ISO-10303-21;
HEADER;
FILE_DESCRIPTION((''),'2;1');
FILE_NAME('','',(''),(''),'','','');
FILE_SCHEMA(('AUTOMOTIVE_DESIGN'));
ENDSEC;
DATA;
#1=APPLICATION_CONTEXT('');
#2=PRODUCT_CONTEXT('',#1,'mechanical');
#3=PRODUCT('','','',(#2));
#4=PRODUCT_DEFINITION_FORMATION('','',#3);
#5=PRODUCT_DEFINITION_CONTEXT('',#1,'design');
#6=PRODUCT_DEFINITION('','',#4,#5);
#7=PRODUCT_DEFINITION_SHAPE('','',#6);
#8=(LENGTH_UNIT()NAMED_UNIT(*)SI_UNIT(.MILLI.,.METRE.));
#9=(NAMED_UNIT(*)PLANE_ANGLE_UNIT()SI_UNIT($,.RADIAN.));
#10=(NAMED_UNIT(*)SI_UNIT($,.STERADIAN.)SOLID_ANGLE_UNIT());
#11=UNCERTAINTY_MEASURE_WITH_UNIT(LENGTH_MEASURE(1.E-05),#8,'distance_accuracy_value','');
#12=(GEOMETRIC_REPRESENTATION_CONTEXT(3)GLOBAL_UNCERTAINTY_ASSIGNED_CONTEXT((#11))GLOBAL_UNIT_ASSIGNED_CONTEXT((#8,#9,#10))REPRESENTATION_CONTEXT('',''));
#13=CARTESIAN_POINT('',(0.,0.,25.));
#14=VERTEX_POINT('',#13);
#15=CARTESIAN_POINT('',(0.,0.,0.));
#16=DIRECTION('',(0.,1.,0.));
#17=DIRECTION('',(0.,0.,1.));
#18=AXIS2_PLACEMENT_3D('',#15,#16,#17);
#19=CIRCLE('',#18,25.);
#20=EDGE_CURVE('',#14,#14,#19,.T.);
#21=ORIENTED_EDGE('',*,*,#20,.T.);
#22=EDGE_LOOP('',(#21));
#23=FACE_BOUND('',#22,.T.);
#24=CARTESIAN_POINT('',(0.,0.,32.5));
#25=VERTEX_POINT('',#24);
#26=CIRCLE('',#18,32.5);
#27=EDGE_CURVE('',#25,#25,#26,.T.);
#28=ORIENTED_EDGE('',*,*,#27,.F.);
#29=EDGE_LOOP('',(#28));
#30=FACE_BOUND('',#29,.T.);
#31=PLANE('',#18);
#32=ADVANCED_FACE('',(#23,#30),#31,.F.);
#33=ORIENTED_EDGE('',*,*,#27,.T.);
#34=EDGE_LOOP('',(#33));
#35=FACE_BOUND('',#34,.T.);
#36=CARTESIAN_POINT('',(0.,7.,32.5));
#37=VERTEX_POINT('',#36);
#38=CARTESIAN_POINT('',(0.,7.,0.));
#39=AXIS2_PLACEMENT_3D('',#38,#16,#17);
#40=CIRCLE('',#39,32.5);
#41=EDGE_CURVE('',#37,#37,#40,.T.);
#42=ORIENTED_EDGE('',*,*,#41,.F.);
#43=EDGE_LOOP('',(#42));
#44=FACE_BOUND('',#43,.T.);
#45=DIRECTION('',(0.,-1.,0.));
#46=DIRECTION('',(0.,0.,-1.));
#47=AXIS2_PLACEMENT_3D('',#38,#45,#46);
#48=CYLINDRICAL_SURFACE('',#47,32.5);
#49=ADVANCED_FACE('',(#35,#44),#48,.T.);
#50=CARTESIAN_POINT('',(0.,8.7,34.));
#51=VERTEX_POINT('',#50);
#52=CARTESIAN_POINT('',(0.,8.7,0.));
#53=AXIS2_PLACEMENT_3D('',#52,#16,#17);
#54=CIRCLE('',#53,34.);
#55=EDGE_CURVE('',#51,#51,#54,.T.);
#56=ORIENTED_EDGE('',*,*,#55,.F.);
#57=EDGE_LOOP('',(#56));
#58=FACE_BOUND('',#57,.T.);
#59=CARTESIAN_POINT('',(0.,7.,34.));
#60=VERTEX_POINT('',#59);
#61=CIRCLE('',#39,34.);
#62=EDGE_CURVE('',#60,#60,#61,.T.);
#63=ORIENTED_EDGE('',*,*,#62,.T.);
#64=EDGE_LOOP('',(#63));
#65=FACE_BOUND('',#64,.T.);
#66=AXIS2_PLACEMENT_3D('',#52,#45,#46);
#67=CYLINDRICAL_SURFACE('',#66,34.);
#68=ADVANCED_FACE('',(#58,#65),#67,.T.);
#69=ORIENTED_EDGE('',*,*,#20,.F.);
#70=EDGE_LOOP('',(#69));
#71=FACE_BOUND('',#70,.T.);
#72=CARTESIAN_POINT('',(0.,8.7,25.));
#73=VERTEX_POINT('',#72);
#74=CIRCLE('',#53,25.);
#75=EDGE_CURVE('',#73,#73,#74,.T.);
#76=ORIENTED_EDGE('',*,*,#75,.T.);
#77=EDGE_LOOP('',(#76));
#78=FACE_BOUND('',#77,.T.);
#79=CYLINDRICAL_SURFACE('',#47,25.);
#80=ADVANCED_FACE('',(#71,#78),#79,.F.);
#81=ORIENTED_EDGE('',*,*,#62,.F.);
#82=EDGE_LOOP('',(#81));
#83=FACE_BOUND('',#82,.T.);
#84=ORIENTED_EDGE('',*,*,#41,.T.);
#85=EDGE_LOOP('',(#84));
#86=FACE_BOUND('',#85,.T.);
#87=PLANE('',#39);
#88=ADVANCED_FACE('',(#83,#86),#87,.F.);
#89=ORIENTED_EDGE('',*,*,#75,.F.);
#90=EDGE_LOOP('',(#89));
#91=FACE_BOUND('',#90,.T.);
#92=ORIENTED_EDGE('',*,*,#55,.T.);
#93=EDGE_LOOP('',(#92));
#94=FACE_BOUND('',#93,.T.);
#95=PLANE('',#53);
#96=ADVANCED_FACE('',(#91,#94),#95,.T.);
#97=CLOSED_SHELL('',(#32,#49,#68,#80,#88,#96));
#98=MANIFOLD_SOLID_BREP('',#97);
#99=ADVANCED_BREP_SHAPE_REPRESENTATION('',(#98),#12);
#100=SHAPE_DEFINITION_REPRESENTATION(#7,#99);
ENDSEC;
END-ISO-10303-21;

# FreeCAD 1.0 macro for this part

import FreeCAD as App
import Part
import Sketcher
Q = App.Units.Quantity

doc = App.newDocument("Part")
body = doc.addObject("PartDesign::Body", "Body")

sketch1 = body.newObject("Sketcher::SketchObject", "Sketch")
sketch1.AttachmentSupport = (doc.getObject("XZ_Plane"), [""])
sketch1.MapMode = "FlatFace"
sketch1.addGeometry(Part.Circle(App.Vector(0, 0, 0), App.Vector(0, 0, 1), 32), False)
sketch1.addGeometry(Part.Circle(App.Vector(0, 0, 0), App.Vector(0, 0, 1), 25), False)
sketch1.addConstraint(Sketcher.Constraint("Coincident", 0, 3, -1, 1))
sketch1.addConstraint(Sketcher.Constraint("Coincident", 1, 3, -1, 1))
sketch1.addConstraint(Sketcher.Constraint("Diameter", 0, Q("65 mm")))
sketch1.addConstraint(Sketcher.Constraint("Diameter", 1, Q("50 mm")))
pad1 = body.newObject("PartDesign::Pad", "Pad")
pad1.Profile = sketch1
pad1.Length = 7
pad1.Reversed = True

sketch2 = body.newObject("Sketcher::SketchObject", "Sketch001")
sketch2.AttachmentSupport = (doc.getObject("XZ_Plane"), [""])
sketch2.MapMode = "FlatFace"
sketch2.AttachmentOffset = App.Placement(App.Vector(0, 0, -7), App.Rotation())
sketch2.addGeometry(Part.Circle(App.Vector(0, 0, 0), App.Vector(0, 0, 1), 34), False)
sketch2.addGeometry(Part.Circle(App.Vector(0, 0, 0), App.Vector(0, 0, 1), 25), False)
sketch2.addConstraint(Sketcher.Constraint("Coincident", 0, 3, -1, 1))
sketch2.addConstraint(Sketcher.Constraint("Coincident", 1, 3, -1, 1))
sketch2.addConstraint(Sketcher.Constraint("Diameter", 0, Q("68 mm")))
sketch2.addConstraint(Sketcher.Constraint("Diameter", 1, Q("50 mm")))
pad2 = body.newObject("PartDesign::Pad", "Pad001")
pad2.Profile = sketch2
pad2.Length = 1.7
pad2.Reversed = True

doc.recompute()
